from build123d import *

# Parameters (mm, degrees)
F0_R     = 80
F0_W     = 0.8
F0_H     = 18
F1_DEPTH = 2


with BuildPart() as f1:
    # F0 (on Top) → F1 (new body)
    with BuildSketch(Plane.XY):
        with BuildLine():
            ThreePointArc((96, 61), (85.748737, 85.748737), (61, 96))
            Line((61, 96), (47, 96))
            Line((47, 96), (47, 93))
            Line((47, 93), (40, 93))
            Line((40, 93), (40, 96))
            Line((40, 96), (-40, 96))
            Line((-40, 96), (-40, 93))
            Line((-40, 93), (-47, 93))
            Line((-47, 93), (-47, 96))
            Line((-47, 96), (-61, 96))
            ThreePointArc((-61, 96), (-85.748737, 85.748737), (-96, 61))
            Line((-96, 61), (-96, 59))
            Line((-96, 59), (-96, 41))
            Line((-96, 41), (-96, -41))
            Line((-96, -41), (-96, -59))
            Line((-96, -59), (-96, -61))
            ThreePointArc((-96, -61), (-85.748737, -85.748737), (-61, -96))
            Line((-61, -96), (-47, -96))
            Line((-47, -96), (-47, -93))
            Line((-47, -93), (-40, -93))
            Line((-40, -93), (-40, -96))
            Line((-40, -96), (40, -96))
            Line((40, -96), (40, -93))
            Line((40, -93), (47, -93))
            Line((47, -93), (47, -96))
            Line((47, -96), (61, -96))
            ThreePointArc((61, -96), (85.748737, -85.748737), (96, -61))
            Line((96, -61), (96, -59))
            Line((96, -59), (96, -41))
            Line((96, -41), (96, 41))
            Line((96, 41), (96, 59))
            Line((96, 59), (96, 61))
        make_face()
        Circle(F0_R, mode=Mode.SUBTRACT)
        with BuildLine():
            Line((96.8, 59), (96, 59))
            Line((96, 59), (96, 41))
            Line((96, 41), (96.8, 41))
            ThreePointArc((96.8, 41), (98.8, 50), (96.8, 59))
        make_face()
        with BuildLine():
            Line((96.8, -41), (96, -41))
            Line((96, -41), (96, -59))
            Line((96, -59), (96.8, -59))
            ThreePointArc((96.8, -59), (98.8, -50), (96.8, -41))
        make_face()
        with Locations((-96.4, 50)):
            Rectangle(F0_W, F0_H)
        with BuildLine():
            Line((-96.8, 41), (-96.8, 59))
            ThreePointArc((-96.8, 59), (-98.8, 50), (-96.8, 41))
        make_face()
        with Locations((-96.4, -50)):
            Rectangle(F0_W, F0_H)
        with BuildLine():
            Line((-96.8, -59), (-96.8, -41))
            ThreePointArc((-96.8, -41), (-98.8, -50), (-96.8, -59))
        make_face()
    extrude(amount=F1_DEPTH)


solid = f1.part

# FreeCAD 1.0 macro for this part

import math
import FreeCAD as App
import Part
import Sketcher

V = App.Vector
Q = App.Units.Quantity

doc = App.newDocument("Part")
body = doc.addObject("PartDesign::Body", "Body")

sketch1 = body.newObject("Sketcher::SketchObject", "Sketch")
sketch1.AttachmentSupport = (doc.getObject("XY_Plane"), [""])
sketch1.MapMode = "FlatFace"
sketch1.addGeometry([
    Part.ArcOfCircle(Part.Circle(V(60.999999, 60.999999, 0), V(0, 0, 1), 35.000001), math.radians(0.000002), math.radians(89.999998)),
    Part.LineSegment(V(61, 96, 0), V(47, 96, 0)),
    Part.LineSegment(V(47, 96, 0), V(47, 93, 0)),
    Part.LineSegment(V(47, 93, 0), V(40, 93, 0)),
    Part.LineSegment(V(40, 93, 0), V(40, 96, 0)),
    Part.LineSegment(V(40, 96, 0), V(-40, 96, 0)),
    Part.LineSegment(V(-40, 96, 0), V(-40, 93, 0)),
    Part.LineSegment(V(-40, 93, 0), V(-47, 93, 0)),
    Part.LineSegment(V(-47, 93, 0), V(-47, 96, 0)),
    Part.LineSegment(V(-47, 96, 0), V(-61, 96, 0)),
    Part.ArcOfCircle(Part.Circle(V(-60.999999, 60.999999, 0), V(0, 0, 1), 35.000001), math.radians(90.000002), math.radians(179.999998)),
    Part.LineSegment(V(-96, 61, 0), V(-96, 59, 0)),
    Part.LineSegment(V(-96, 59, 0), V(-96.8, 59, 0)),
    Part.ArcOfCircle(Part.Circle(V(-77.55, 50, 0), V(0, 0, 1), 21.25), math.radians(154.942385), math.radians(205.057615)),
    Part.LineSegment(V(-96.8, 41, 0), V(-96, 41, 0)),
    Part.LineSegment(V(-96, 41, 0), V(-96, -41, 0)),
    Part.LineSegment(V(-96, -41, 0), V(-96.8, -41, 0)),
    Part.ArcOfCircle(Part.Circle(V(-77.55, -50, 0), V(0, 0, 1), 21.25), math.radians(154.942385), math.radians(205.057615)),
    Part.LineSegment(V(-96.8, -59, 0), V(-96, -59, 0)),
    Part.LineSegment(V(-96, -59, 0), V(-96, -61, 0)),
    Part.ArcOfCircle(Part.Circle(V(-60.999999, -60.999999, 0), V(0, 0, 1), 35.000001), math.radians(-179.999998), math.radians(-90.000002)),
    Part.LineSegment(V(-61, -96, 0), V(-47, -96, 0)),
    Part.LineSegment(V(-47, -96, 0), V(-47, -93, 0)),
    Part.LineSegment(V(-47, -93, 0), V(-40, -93, 0)),
    Part.LineSegment(V(-40, -93, 0), V(-40, -96, 0)),
    Part.LineSegment(V(-40, -96, 0), V(40, -96, 0)),
    Part.LineSegment(V(40, -96, 0), V(40, -93, 0)),
    Part.LineSegment(V(40, -93, 0), V(47, -93, 0)),
    Part.LineSegment(V(47, -93, 0), V(47, -96, 0)),
    Part.LineSegment(V(47, -96, 0), V(61, -96, 0)),
    Part.ArcOfCircle(Part.Circle(V(60.999999, -60.999999, 0), V(0, 0, 1), 35.000001), math.radians(-89.999998), math.radians(-0.000002)),
    Part.LineSegment(V(96, -61, 0), V(96, -59, 0)),
    Part.LineSegment(V(96, -59, 0), V(96.8, -59, 0)),
    Part.ArcOfCircle(Part.Circle(V(77.55, -50, 0), V(0, 0, 1), 21.25), math.radians(-25.057615), math.radians(25.057615)),
    Part.LineSegment(V(96.8, -41, 0), V(96, -41, 0)),
    Part.LineSegment(V(96, -41, 0), V(96, 41, 0)),
    Part.LineSegment(V(96, 41, 0), V(96.8, 41, 0)),
    Part.ArcOfCircle(Part.Circle(V(77.55, 50, 0), V(0, 0, 1), 21.25), math.radians(-25.057615), math.radians(25.057615)),
    Part.LineSegment(V(96.8, 59, 0), V(96, 59, 0)),
    Part.LineSegment(V(96, 59, 0), V(96, 61, 0)),
    Part.Circle(V(0, 0, 0), V(0, 0, 1), 80),
], False)
sketch1.addConstraint([
    Sketcher.Constraint("Tangent", 0, 2, 1, 1),
    Sketcher.Constraint("Coincident", 1, 2, 2, 1),
    Sketcher.Constraint("Coincident", 2, 2, 3, 1),
    Sketcher.Constraint("Coincident", 3, 2, 4, 1),
    Sketcher.Constraint("Coincident", 4, 2, 5, 1),
    Sketcher.Constraint("Coincident", 5, 2, 6, 1),
    Sketcher.Constraint("Coincident", 6, 2, 7, 1),
    Sketcher.Constraint("Coincident", 7, 2, 8, 1),
    Sketcher.Constraint("Coincident", 8, 2, 9, 1),
    Sketcher.Constraint("Tangent", 9, 2, 10, 1),
    Sketcher.Constraint("Tangent", 10, 2, 11, 1),
    Sketcher.Constraint("Coincident", 11, 2, 12, 1),
    Sketcher.Constraint("Coincident", 12, 2, 13, 1),
    Sketcher.Constraint("Coincident", 13, 2, 14, 1),
    Sketcher.Constraint("Coincident", 14, 2, 15, 1),
    Sketcher.Constraint("Coincident", 15, 2, 16, 1),
    Sketcher.Constraint("Coincident", 16, 2, 17, 1),
    Sketcher.Constraint("Coincident", 17, 2, 18, 1),
    Sketcher.Constraint("Coincident", 18, 2, 19, 1),
    Sketcher.Constraint("Tangent", 19, 2, 20, 1),
    Sketcher.Constraint("Tangent", 20, 2, 21, 1),
    Sketcher.Constraint("Coincident", 21, 2, 22, 1),
    Sketcher.Constraint("Coincident", 22, 2, 23, 1),
    Sketcher.Constraint("Coincident", 23, 2, 24, 1),
    Sketcher.Constraint("Coincident", 24, 2, 25, 1),
    Sketcher.Constraint("Coincident", 25, 2, 26, 1),
    Sketcher.Constraint("Coincident", 26, 2, 27, 1),
    Sketcher.Constraint("Coincident", 27, 2, 28, 1),
    Sketcher.Constraint("Coincident", 28, 2, 29, 1),
    Sketcher.Constraint("Tangent", 29, 2, 30, 1),
    Sketcher.Constraint("Tangent", 30, 2, 31, 1),
    Sketcher.Constraint("Coincident", 31, 2, 32, 1),
    Sketcher.Constraint("Coincident", 32, 2, 33, 1),
    Sketcher.Constraint("Coincident", 33, 2, 34, 1),
    Sketcher.Constraint("Coincident", 34, 2, 35, 1),
    Sketcher.Constraint("Coincident", 35, 2, 36, 1),
    Sketcher.Constraint("Coincident", 36, 2, 37, 1),
    Sketcher.Constraint("Coincident", 37, 2, 38, 1),
    Sketcher.Constraint("Coincident", 38, 2, 39, 1),
    Sketcher.Constraint("Tangent", 39, 2, 0, 1),
    Sketcher.Constraint("Horizontal", 1),
    Sketcher.Constraint("Vertical", 2),
    Sketcher.Constraint("Horizontal", 3),
    Sketcher.Constraint("Vertical", 4),
    Sketcher.Constraint("Horizontal", 5),
    Sketcher.Constraint("Vertical", 6),
    Sketcher.Constraint("Horizontal", 7),
    Sketcher.Constraint("Vertical", 8),
    Sketcher.Constraint("Horizontal", 9),
    Sketcher.Constraint("Vertical", 11),
    Sketcher.Constraint("Horizontal", 12),
    Sketcher.Constraint("Horizontal", 14),
    Sketcher.Constraint("Vertical", 15),
    Sketcher.Constraint("Horizontal", 16),
    Sketcher.Constraint("Horizontal", 18),
    Sketcher.Constraint("Vertical", 19),
    Sketcher.Constraint("Horizontal", 21),
    Sketcher.Constraint("Vertical", 22),
    Sketcher.Constraint("Horizontal", 23),
    Sketcher.Constraint("Vertical", 24),
    Sketcher.Constraint("Horizontal", 25),
    Sketcher.Constraint("Vertical", 26),
    Sketcher.Constraint("Horizontal", 27),
    Sketcher.Constraint("Vertical", 28),
    Sketcher.Constraint("Horizontal", 29),
    Sketcher.Constraint("Vertical", 31),
    Sketcher.Constraint("Horizontal", 32),
    Sketcher.Constraint("Horizontal", 34),
    Sketcher.Constraint("Vertical", 35),
    Sketcher.Constraint("Horizontal", 36),
    Sketcher.Constraint("Horizontal", 38),
    Sketcher.Constraint("Vertical", 39),
    Sketcher.Constraint("Coincident", 40, 3, -1, 1),
    Sketcher.Constraint("Equal", 0, 10),
    Sketcher.Constraint("Equal", 13, 17),
    Sketcher.Constraint("Equal", 10, 20),
    Sketcher.Constraint("Equal", 20, 30),
    Sketcher.Constraint("Equal", 17, 33),
    Sketcher.Constraint("Equal", 33, 37),
    Sketcher.Constraint("Symmetric", 0, 3, 20, 3, -1, 1),
    Sketcher.Constraint("Symmetric", 10, 3, 30, 3, -1, 1),
    Sketcher.Constraint("Symmetric", 13, 3, 33, 3, -1, 1),
    Sketcher.Constraint("Symmetric", 17, 3, 37, 3, -1, 1),
    Sketcher.Constraint("Symmetric", 2, 2, 22, 2, -1, 1),
    Sketcher.Constraint("Symmetric", 4, 2, 24, 2, -1, 1),
    Sketcher.Constraint("Symmetric", 6, 2, 26, 2, -1, 1),
    Sketcher.Constraint("Symmetric", 14, 2, 34, 2, -1, 1),
    Sketcher.Constraint("Symmetric", 0, 3, 10, 3, -2),
    Sketcher.Constraint("Symmetric", 17, 3, 33, 3, -2),
    Sketcher.Constraint("Symmetric", 3, 2, 6, 2, -2),
    Sketcher.Constraint("Horizontal", 1, 2, 4, 2),
    Sketcher.Constraint("Horizontal", 18, 2, 31, 2),
    Sketcher.Constraint("Horizontal", 16, 2, 33, 2),
    Sketcher.Constraint("Horizontal", 14, 2, 35, 2),
    Sketcher.Constraint("Horizontal", 12, 2, 37, 2),
    Sketcher.Constraint("Vertical", 12, 2, 13, 2),
    Sketcher.Constraint("Vertical", 11, 2, 14, 2),
    Sketcher.Constraint("Vertical", 16, 2, 17, 2),
    Sketcher.Constraint("Vertical", 8, 2, 21, 2),
    Sketcher.Constraint("Vertical", 2, 2, 27, 2),
    Sketcher.Constraint("Diameter", 40, Q("160 mm")),
    Sketcher.Constraint("Radius", 0, Q("35.000001 mm")),
    Sketcher.Constraint("DistanceX", 1, 2, 1, 1, Q("14 mm")),
    Sketcher.Constraint("DistanceX", 3, 2, 3, 1, Q("7 mm")),
    Sketcher.Constraint("DistanceX", 5, 2, 5, 1, Q("80 mm")),
    Sketcher.Constraint("DistanceY", 2, 2, 2, 1, Q("3 mm")),
    Sketcher.Constraint("DistanceY", 11, 2, 11, 1, Q("2 mm")),
    Sketcher.Constraint("DistanceY", 15, 2, 15, 1, Q("82 mm")),
    Sketcher.Constraint("Radius", 13, Q("21.25 mm")),
    Sketcher.Constraint("DistanceX", 12, 2, 12, 1, Q("0.8 mm")),
    Sketcher.Constraint("DistanceY", -1, 1, 0, 3, Q("60.999999 mm")),
])
pad1 = body.newObject("PartDesign::Pad", "Pad")
pad1.Profile = sketch1
pad1.Length = 2

doc.recompute()
